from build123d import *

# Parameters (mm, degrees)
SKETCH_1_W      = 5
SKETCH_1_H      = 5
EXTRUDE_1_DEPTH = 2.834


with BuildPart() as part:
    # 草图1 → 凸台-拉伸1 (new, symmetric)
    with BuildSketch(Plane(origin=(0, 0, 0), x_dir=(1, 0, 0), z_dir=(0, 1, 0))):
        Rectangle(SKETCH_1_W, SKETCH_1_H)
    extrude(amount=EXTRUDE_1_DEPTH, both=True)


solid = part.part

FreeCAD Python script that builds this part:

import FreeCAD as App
import Part
import Sketcher

V = App.Vector
Q = App.Units.Quantity


def add_polygon(sketch, points):
    """Adds a closed chain of lines whose ends are joined by coincident constraints."""
    first, n = sketch.GeometryCount, len(points)
    for a, b in zip(points, points[1:] + points[:1]):
        sketch.addGeometry(Part.LineSegment(App.Vector(*a, 0), App.Vector(*b, 0)), False)
    for i in range(n):
        sketch.addConstraint(Sketcher.Constraint("Coincident", first + i, 2, first + (i + 1) % n, 1))

doc = App.newDocument("Part")
body = doc.addObject("PartDesign::Body", "Body")

# Sketch on XZ plane
sketch1 = doc.addObject("Sketcher::SketchObject", "Sketch")
body.addObject(sketch1)
sketch1.AttachmentSupport = (doc.XZ_Plane, [""])
sketch1.MapMode = "FlatFace"
add_polygon(sketch1, [(-2.5, -2.5), (-2.5, 2.5), (2.5, 2.5), (2.5, -2.5)])  # lines 0-3
sketch1.addConstraint([
    Sketcher.Constraint("Vertical", 0),
    Sketcher.Constraint("Horizontal", 1),
    Sketcher.Constraint("Vertical", 2),
    Sketcher.Constraint("Horizontal", 3),
    Sketcher.Constraint("Symmetric", 0, 2, 2, 2, -1, 1),
    Sketcher.Constraint("Equal", 3, 0),
    Sketcher.Constraint("DistanceX", 1, 1, 1, 2, Q("5 mm")),
])
pad1 = doc.addObject("PartDesign::Pad", "Pad")
body.addObject(pad1)
pad1.Profile = sketch1
pad1.Length = 5.668
pad1.Midplane = True

doc.recompute()
